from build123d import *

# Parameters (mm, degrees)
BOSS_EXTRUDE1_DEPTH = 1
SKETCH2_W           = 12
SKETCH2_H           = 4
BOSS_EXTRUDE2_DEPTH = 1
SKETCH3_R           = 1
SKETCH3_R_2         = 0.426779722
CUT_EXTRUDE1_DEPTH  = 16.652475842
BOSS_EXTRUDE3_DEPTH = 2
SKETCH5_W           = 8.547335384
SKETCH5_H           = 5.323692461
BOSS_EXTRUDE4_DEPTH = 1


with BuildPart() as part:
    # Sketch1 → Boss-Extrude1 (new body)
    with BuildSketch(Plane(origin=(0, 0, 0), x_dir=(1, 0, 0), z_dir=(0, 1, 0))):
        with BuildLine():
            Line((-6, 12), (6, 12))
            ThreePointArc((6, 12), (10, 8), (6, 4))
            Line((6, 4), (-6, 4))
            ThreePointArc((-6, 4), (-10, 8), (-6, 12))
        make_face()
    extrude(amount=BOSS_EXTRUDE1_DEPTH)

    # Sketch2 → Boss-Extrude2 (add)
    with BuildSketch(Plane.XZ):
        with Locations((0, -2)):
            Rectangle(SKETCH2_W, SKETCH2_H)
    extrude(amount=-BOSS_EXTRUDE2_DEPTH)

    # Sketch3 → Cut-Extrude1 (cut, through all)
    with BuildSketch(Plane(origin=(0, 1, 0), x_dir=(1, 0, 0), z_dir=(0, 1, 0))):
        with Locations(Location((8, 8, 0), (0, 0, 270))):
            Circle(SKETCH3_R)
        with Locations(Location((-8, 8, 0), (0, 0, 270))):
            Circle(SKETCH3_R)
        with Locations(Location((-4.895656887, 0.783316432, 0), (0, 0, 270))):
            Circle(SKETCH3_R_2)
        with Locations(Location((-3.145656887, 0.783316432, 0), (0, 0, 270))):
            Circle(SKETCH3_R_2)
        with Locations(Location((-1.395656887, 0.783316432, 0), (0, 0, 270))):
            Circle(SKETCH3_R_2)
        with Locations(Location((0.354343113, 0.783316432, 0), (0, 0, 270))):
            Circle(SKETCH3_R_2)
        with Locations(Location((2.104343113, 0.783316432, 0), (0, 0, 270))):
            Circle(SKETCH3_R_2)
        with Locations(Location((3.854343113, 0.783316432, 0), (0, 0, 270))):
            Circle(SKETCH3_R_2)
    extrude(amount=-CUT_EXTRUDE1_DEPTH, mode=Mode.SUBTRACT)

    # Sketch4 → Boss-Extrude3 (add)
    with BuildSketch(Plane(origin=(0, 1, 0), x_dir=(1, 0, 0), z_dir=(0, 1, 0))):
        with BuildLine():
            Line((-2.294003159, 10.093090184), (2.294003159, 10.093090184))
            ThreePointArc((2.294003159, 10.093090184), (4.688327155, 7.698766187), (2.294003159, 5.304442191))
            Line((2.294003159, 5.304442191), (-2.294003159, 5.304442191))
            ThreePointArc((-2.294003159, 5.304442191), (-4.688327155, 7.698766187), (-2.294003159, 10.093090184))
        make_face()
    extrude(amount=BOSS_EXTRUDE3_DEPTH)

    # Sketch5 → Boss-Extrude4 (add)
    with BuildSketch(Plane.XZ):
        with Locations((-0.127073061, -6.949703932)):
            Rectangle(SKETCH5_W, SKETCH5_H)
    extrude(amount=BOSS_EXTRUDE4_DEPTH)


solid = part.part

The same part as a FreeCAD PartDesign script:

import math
import FreeCAD as App
import Part
import Sketcher
from FreeCAD import Vector
Q = App.Units.Quantity

doc = App.newDocument("Part")
body = doc.addObject("PartDesign::Body", "Body")

# Sketch on XZ plane
sketch1 = body.newObject("Sketcher::SketchObject", "Sketch")
sketch1.AttachmentSupport = (doc.getObject("XZ_Plane"), [""])
sketch1.MapMode = "FlatFace"
sketch1.addGeometry([
    Part.LineSegment(Vector(6, -12, 0), Vector(-6, -12, 0)),
    Part.ArcOfCircle(Part.Circle(Vector(-6, -8, 0), Vector(0, 0, 1), 4), math.radians(90), math.radians(270)),
    Part.LineSegment(Vector(-6, -4, 0), Vector(6, -4, 0)),
    Part.ArcOfCircle(Part.Circle(Vector(6, -8, 0), Vector(0, 0, 1), 4), math.radians(-90), math.radians(90)),
], False)
sketch1.addConstraint([
    Sketcher.Constraint("Tangent", 0, 2, 1, 2),
    Sketcher.Constraint("Tangent", 1, 1, 2, 1),
    Sketcher.Constraint("Tangent", 2, 2, 3, 2),
    Sketcher.Constraint("Tangent", 3, 1, 0, 1),
    Sketcher.Constraint("Horizontal", 0),
    Sketcher.Constraint("Horizontal", 2),
    Sketcher.Constraint("Radius", 1, Q("4 mm")),
    Sketcher.Constraint("DistanceX", 0, 2, 0, 1, Q("12 mm")),
    Sketcher.Constraint("DistanceX", 1, 3, -1, 1, Q("6 mm")),
    Sketcher.Constraint("DistanceY", 1, 3, -1, 1, Q("8 mm")),
])
pad1 = body.newObject("PartDesign::Pad", "Pad")
pad1.Profile = sketch1
pad1.Length = 1
pad1.Reversed = True

# Sketch on XZ plane
sketch2 = body.newObject("Sketcher::SketchObject", "Sketch001")
sketch2.AttachmentSupport = (doc.getObject("XZ_Plane"), [""])
sketch2.MapMode = "FlatFace"
sketch2.addGeometry([
    Part.LineSegment(Vector(-6, 0, 0), Vector(-6, -4, 0)),
    Part.LineSegment(Vector(-6, -4, 0), Vector(6, -4, 0)),
    Part.LineSegment(Vector(6, -4, 0), Vector(6, 0, 0)),
    Part.LineSegment(Vector(6, 0, 0), Vector(-6, 0, 0)),
], False)
sketch2.addConstraint([
    Sketcher.Constraint("Coincident", 0, 2, 1, 1),
    Sketcher.Constraint("Coincident", 1, 2, 2, 1),
    Sketcher.Constraint("Coincident", 2, 2, 3, 1),
    Sketcher.Constraint("Coincident", 3, 2, 0, 1),
    Sketcher.Constraint("Vertical", 0),
    Sketcher.Constraint("Horizontal", 1),
    Sketcher.Constraint("Vertical", 2),
    Sketcher.Constraint("Horizontal", 3),
    Sketcher.Constraint("Symmetric", 2, 2, 3, 2, -1, 1),
    Sketcher.Constraint("DistanceX", 1, 1, 1, 2, Q("12 mm")),
    Sketcher.Constraint("DistanceY", 0, 2, 0, 1, Q("4 mm")),
])
pad2 = body.newObject("PartDesign::Pad", "Pad001")
pad2.Profile = sketch2
pad2.Length = 1
pad2.Reversed = True

# Sketch on XZ plane
sketch3 = body.newObject("Sketcher::SketchObject", "Sketch002")
sketch3.AttachmentSupport = (doc.getObject("XZ_Plane"), [""])
sketch3.MapMode = "FlatFace"
sketch3.AttachmentOffset = App.Placement(Vector(0, 0, -1), App.Rotation())
sketch3.addGeometry([
    Part.Circle(Vector(8, -8, 0), Vector(0, 0, 1), 1),  # 0
    Part.Circle(Vector(-8, -8, 0), Vector(0, 0, 1), 1),  # 1
    Part.Circle(Vector(-4.895657, -0.783316, 0), Vector(0, 0, 1), 0.42678),  # 2
    Part.Circle(Vector(-3.145657, -0.783316, 0), Vector(0, 0, 1), 0.42678),  # 3
    Part.Circle(Vector(-1.395657, -0.783316, 0), Vector(0, 0, 1), 0.42678),  # 4
    Part.Circle(Vector(0.354343, -0.783316, 0), Vector(0, 0, 1), 0.42678),  # 5
    Part.Circle(Vector(2.104343, -0.783316, 0), Vector(0, 0, 1), 0.42678),  # 6
    Part.Circle(Vector(3.854343, -0.783316, 0), Vector(0, 0, 1), 0.42678),  # 7
], False)
sketch3.addConstraint([
    Sketcher.Constraint("Equal", 0, 1),
    Sketcher.Constraint("Equal", 2, 3),
    Sketcher.Constraint("Equal", 3, 4),
    Sketcher.Constraint("Equal", 4, 5),
    Sketcher.Constraint("Equal", 5, 6),
    Sketcher.Constraint("Equal", 6, 7),
    Sketcher.Constraint("Symmetric", 0, 3, 1, 3, -2),
    Sketcher.Constraint("Horizontal", 2, 3, 3, 3),
    Sketcher.Constraint("Horizontal", 3, 3, 4, 3),
    Sketcher.Constraint("Horizontal", 4, 3, 5, 3),
    Sketcher.Constraint("Horizontal", 5, 3, 6, 3),
    Sketcher.Constraint("Horizontal", 6, 3, 7, 3),
    Sketcher.Constraint("Diameter", 0, Q("2 mm")),
    Sketcher.Constraint("DistanceX", -1, 1, 0, 3, Q("8 mm")),
    Sketcher.Constraint("DistanceY", 0, 3, -1, 1, Q("8 mm")),
    Sketcher.Constraint("DistanceX", 2, 3, 6, 3, Q("7 mm")),
    Sketcher.Constraint("DistanceX", 3, 3, 7, 3, Q("7 mm")),
    Sketcher.Constraint("DistanceX", 2, 3, 4, 3, Q("3.5 mm")),
    Sketcher.Constraint("DistanceX", 3, 3, 5, 3, Q("3.5 mm")),
    Sketcher.Constraint("Diameter", 2, Q("0.853559 mm")),
    Sketcher.Constraint("DistanceX", 2, 3, 3, 3, Q("1.75 mm")),
    Sketcher.Constraint("DistanceX", 2, 3, -1, 1, Q("4.895657 mm")),
    Sketcher.Constraint("DistanceY", 2, 3, -1, 1, Q("0.783316 mm")),
])
pocket1 = body.newObject("PartDesign::Pocket", "Pocket")
pocket1.Profile = sketch3
pocket1.Type = "ThroughAll"
pocket1.Reversed = True

# Sketch on XZ plane
sketch4 = body.newObject("Sketcher::SketchObject", "Sketch003")
sketch4.AttachmentSupport = (doc.getObject("XZ_Plane"), [""])
sketch4.MapMode = "FlatFace"
sketch4.AttachmentOffset = App.Placement(Vector(0, 0, -1), App.Rotation())
sketch4.addGeometry([
    Part.LineSegment(Vector(2.294003, -10.09309, 0), Vector(-2.294003, -10.09309, 0)),
    Part.ArcOfCircle(Part.Circle(Vector(-2.294003, -7.698766, 0), Vector(0, 0, 1), 2.394324), math.radians(90), math.radians(270)),
    Part.LineSegment(Vector(-2.294003, -5.304442, 0), Vector(2.294003, -5.304442, 0)),
    Part.ArcOfCircle(Part.Circle(Vector(2.294003, -7.698766, 0), Vector(0, 0, 1), 2.394324), math.radians(-90), math.radians(90)),
], False)
sketch4.addConstraint([
    Sketcher.Constraint("Tangent", 0, 2, 1, 2),
    Sketcher.Constraint("Tangent", 1, 1, 2, 1),
    Sketcher.Constraint("Tangent", 2, 2, 3, 2),
    Sketcher.Constraint("Tangent", 3, 1, 0, 1),
    Sketcher.Constraint("Horizontal", 0),
    Sketcher.Constraint("Horizontal", 2),
    Sketcher.Constraint("Radius", 1, Q("2.394324 mm")),
    Sketcher.Constraint("DistanceX", 0, 2, 0, 1, Q("4.588006 mm")),
    Sketcher.Constraint("DistanceY", 0, 2, -1, 1, Q("10.09309 mm")),
    Sketcher.Constraint("DistanceX", 1, 3, -1, 1, Q("2.294003 mm")),
])
pad3 = body.newObject("PartDesign::Pad", "Pad002")
pad3.Profile = sketch4
pad3.Length = 2
pad3.Reversed = True

# Sketch on XZ plane
sketch5 = body.newObject("Sketcher::SketchObject", "Sketch004")
sketch5.AttachmentSupport = (doc.getObject("XZ_Plane"), [""])
sketch5.MapMode = "FlatFace"
sketch5.addGeometry([
    Part.LineSegment(Vector(-4.400741, -4.287858, 0), Vector(-4.400741, -9.61155, 0)),
    Part.LineSegment(Vector(-4.400741, -9.61155, 0), Vector(4.146595, -9.61155, 0)),
    Part.LineSegment(Vector(4.146595, -9.61155, 0), Vector(4.146595, -4.287858, 0)),
    Part.LineSegment(Vector(4.146595, -4.287858, 0), Vector(-4.400741, -4.287858, 0)),
], False)
sketch5.addConstraint([
    Sketcher.Constraint("Coincident", 0, 2, 1, 1),
    Sketcher.Constraint("Coincident", 1, 2, 2, 1),
    Sketcher.Constraint("Coincident", 2, 2, 3, 1),
    Sketcher.Constraint("Coincident", 3, 2, 0, 1),
    Sketcher.Constraint("Vertical", 0),
    Sketcher.Constraint("Horizontal", 1),
    Sketcher.Constraint("Vertical", 2),
    Sketcher.Constraint("Horizontal", 3),
    Sketcher.Constraint("DistanceX", 1, 1, 1, 2, Q("8.547335 mm")),
    Sketcher.Constraint("DistanceY", 0, 2, 0, 1, Q("5.323692 mm")),
    Sketcher.Constraint("DistanceX", 0, 2, -1, 1, Q("4.400741 mm")),
    Sketcher.Constraint("DistanceY", 0, 2, -1, 1, Q("9.61155 mm")),
])
pad4 = body.newObject("PartDesign::Pad", "Pad003")
pad4.Profile = sketch5
pad4.Length = 1

doc.recompute()
